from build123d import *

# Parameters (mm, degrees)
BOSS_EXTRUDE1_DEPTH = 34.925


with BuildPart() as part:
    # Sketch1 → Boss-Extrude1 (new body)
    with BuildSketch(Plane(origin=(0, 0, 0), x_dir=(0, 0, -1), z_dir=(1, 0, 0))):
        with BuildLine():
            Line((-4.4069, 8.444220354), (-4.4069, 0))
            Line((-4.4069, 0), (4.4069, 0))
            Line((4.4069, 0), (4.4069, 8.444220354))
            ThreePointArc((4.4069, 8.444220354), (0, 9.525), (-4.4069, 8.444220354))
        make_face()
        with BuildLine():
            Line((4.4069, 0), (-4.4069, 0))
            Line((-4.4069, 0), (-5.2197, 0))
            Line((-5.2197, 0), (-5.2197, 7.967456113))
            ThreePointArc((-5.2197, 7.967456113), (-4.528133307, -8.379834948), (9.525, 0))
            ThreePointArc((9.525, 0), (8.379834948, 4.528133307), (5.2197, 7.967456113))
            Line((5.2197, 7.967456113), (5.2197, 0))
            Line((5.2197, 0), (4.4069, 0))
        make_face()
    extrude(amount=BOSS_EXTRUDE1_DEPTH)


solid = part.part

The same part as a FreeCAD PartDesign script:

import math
import FreeCAD as App
import Part
import Sketcher
Q = App.Units.Quantity

doc = App.newDocument("Part")
body = doc.addObject("PartDesign::Body", "Body")

# Sketch on YZ plane
sketch1 = body.newObject("Sketcher::SketchObject", "Sketch")
sketch1.AttachmentSupport = (doc.getObject("YZ_Plane"), [""])
sketch1.MapMode = "FlatFace"
sketch1.addGeometry(Part.LineSegment(App.Vector(8.4, 4.4, 0), App.Vector(0, 4.4, 0)), False)
sketch1.addGeometry(Part.LineSegment(App.Vector(0, 4.4, 0), App.Vector(0, 5.2, 0)), False)
sketch1.addGeometry(Part.LineSegment(App.Vector(0, 5.2, 0), App.Vector(8, 5.2, 0)), False)
sketch1.addGeometry(Part.ArcOfCircle(Part.Circle(App.Vector(0, 0, 0), App.Vector(0, 0, 1), 9.5), math.radians(33), math.radians(270)), False)
sketch1.addGeometry(Part.ArcOfCircle(Part.Circle(App.Vector(0, 0, 0), App.Vector(0, 0, 1), 9.5), math.radians(-90), math.radians(-33)), False)
sketch1.addGeometry(Part.LineSegment(App.Vector(8, -5.2, 0), App.Vector(0, -5.2, 0)), False)
sketch1.addGeometry(Part.LineSegment(App.Vector(0, -5.2, 0), App.Vector(0, -4.4, 0)), False)
sketch1.addGeometry(Part.LineSegment(App.Vector(0, -4.4, 0), App.Vector(8.4, -4.4, 0)), False)
sketch1.addGeometry(Part.ArcOfCircle(Part.Circle(App.Vector(0, 0, 0), App.Vector(0, 0, 1), 9.5), math.radians(-28), math.radians(28)), False)
sketch1.addConstraint(Sketcher.Constraint("Coincident", 0, 2, 1, 1))
sketch1.addConstraint(Sketcher.Constraint("Coincident", 1, 2, 2, 1))
sketch1.addConstraint(Sketcher.Constraint("Coincident", 2, 2, 3, 1))
sketch1.addConstraint(Sketcher.Constraint("Tangent", 3, 2, 4, 1))
sketch1.addConstraint(Sketcher.Constraint("Coincident", 4, 2, 5, 1))
sketch1.addConstraint(Sketcher.Constraint("Coincident", 5, 2, 6, 1))
sketch1.addConstraint(Sketcher.Constraint("Coincident", 6, 2, 7, 1))
sketch1.addConstraint(Sketcher.Constraint("Coincident", 7, 2, 8, 1))
sketch1.addConstraint(Sketcher.Constraint("Coincident", 8, 2, 0, 1))
sketch1.addConstraint(Sketcher.Constraint("Horizontal", 0))
sketch1.addConstraint(Sketcher.Constraint("Vertical", 1))
sketch1.addConstraint(Sketcher.Constraint("Horizontal", 2))
sketch1.addConstraint(Sketcher.Constraint("Horizontal", 5))
sketch1.addConstraint(Sketcher.Constraint("Vertical", 6))
sketch1.addConstraint(Sketcher.Constraint("Horizontal", 7))
sketch1.addConstraint(Sketcher.Constraint("Coincident", 3, 3, -1, 1))
sketch1.addConstraint(Sketcher.Constraint("Coincident", 8, 3, -1, 1))
sketch1.addConstraint(Sketcher.Constraint("Equal", 3, 4))
sketch1.addConstraint(Sketcher.Constraint("Equal", 4, 8))
sketch1.addConstraint(Sketcher.Constraint("Symmetric", 1, 2, 5, 2, -1, 1))
sketch1.addConstraint(Sketcher.Constraint("Symmetric", 0, 2, 6, 2, -1))
sketch1.addConstraint(Sketcher.Constraint("PointOnObject", 3, 2, -2))
sketch1.addConstraint(Sketcher.Constraint("Radius", 3, Q("0.375 in")))
sketch1.addConstraint(Sketcher.Constraint("DistanceY", 1, 1, 1, 2, Q("0.032 in")))
sketch1.addConstraint(Sketcher.Constraint("DistanceY", 4, 2, 2, 2, Q("0.411 in")))
pad1 = body.newObject("PartDesign::Pad", "Pad")
pad1.Profile = sketch1
pad1.Length = Q("1.375 in")

doc.recompute()
